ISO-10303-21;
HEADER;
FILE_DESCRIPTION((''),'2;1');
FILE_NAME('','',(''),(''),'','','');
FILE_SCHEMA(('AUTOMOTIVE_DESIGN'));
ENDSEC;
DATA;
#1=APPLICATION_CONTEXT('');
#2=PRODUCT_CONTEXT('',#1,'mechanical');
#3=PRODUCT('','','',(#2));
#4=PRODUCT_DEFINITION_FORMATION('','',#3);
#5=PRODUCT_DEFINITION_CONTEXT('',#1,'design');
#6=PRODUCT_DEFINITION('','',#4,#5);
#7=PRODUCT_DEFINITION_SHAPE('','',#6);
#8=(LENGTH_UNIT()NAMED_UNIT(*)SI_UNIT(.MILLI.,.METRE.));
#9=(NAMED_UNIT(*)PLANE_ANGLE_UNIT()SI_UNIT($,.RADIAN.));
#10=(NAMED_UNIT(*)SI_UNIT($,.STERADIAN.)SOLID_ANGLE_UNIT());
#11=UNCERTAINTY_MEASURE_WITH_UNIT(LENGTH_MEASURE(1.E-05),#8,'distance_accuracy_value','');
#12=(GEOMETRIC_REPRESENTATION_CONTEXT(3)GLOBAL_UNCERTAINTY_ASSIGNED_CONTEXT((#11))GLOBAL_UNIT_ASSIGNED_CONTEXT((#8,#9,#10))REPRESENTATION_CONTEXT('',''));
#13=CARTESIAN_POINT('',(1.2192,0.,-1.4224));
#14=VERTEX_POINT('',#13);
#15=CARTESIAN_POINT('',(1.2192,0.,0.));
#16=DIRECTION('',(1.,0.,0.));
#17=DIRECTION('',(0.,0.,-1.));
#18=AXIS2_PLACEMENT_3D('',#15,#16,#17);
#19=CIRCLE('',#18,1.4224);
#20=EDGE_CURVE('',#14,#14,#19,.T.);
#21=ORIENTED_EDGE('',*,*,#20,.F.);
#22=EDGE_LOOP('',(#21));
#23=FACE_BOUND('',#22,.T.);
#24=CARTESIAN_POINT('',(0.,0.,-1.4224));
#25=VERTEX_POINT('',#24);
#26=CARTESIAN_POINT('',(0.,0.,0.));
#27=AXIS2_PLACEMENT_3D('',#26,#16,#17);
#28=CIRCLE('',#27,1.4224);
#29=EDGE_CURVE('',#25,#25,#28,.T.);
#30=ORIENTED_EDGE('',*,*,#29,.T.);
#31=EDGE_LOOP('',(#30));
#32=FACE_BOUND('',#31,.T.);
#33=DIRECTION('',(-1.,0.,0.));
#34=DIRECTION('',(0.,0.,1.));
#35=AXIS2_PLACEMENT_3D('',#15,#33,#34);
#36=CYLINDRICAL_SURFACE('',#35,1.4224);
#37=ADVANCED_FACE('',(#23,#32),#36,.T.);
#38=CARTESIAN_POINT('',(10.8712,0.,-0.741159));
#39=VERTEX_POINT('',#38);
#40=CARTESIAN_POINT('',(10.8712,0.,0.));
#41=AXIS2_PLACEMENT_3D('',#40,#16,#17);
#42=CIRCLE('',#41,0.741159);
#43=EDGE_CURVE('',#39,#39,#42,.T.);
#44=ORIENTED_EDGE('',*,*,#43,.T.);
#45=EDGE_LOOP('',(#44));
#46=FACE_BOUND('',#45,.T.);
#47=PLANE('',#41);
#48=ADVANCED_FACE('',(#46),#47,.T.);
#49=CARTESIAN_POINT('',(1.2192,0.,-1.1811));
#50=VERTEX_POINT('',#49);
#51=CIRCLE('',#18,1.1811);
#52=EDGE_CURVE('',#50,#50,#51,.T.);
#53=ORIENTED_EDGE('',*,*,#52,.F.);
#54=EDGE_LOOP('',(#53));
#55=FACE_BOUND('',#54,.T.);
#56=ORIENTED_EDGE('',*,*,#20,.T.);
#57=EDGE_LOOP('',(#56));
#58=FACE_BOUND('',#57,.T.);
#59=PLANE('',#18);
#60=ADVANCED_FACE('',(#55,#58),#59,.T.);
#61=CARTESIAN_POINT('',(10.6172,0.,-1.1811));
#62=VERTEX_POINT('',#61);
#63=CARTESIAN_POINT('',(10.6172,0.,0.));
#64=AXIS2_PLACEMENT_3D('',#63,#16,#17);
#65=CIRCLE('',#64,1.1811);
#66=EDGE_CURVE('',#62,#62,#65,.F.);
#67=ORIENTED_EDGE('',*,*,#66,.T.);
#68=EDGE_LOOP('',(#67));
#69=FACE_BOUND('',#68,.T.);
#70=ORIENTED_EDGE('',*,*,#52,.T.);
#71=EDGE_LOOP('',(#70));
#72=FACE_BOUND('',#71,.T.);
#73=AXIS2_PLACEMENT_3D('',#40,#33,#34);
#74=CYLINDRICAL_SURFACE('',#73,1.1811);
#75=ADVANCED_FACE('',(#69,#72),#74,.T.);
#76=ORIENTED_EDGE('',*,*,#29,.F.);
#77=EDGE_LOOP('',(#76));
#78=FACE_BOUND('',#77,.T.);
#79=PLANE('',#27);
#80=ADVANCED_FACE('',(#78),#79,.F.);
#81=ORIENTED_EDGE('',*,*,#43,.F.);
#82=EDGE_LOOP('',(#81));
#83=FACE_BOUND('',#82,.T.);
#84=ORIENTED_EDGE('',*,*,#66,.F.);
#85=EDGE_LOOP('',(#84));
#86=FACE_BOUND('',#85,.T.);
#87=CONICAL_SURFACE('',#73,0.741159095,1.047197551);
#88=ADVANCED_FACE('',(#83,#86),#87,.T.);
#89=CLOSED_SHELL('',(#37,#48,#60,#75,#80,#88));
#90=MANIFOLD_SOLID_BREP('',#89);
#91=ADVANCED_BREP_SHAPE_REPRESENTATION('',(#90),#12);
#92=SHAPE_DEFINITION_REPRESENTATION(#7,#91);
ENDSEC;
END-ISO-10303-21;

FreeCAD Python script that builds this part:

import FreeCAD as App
import Part
import Sketcher
Q = App.Units.Quantity


def edges_at(feature, points):
    """Names of the edges that pass closest to the given points."""
    edges = feature.Shape.Edges
    near = lambda p: min(range(len(edges)), key=lambda i: edges[i].distToShape(Part.Vertex(*p))[0])
    return sorted({f"Edge{near(p) + 1}" for p in points})

doc = App.newDocument("Part")
params = doc.addObject("Spreadsheet::Sheet", "Params")
for row, (alias, value) in enumerate([
    ("sketch1_diameter", "0.112 in"),
    ("pad1_length", "0.048 in"),
    ("sketch2_diameter", "0.093 in"),
    ("pad2_length", "0.38 in"),
    ("chamfer_size", "0.01 in"),
    ("chamfer_size2", "0.439941 mm"),
], start=1):
    params.set(f"A{row}", alias)
    params.set(f"B{row}", "=" + value)
    params.setAlias(f"B{row}", alias)

body = doc.addObject("PartDesign::Body", "Body")

# Sketch on YZ plane
sketch1 = body.newObject("Sketcher::SketchObject", "Sketch")
sketch1.AttachmentSupport = (doc.getObject("YZ_Plane"), [""])
sketch1.MapMode = "FlatFace"
sketch1.addGeometry(Part.Circle(App.Vector(0, 0, 0), App.Vector(0, 0, 1), 1.4), False)
sketch1.addConstraint(Sketcher.Constraint("Coincident", 0, 3, -1, 1))
sketch1.addConstraint(Sketcher.Constraint("Diameter", 0, Q("0.112 in")))
sketch1.setExpression("Constraints[1]", "Params.sketch1_diameter")
pad1 = body.newObject("PartDesign::Pad", "Pad")
pad1.Profile = sketch1
pad1.setExpression("Length", "Params.pad1_length")

# Sketch on YZ plane
sketch2 = body.newObject("Sketcher::SketchObject", "Sketch001")
sketch2.AttachmentSupport = (doc.getObject("YZ_Plane"), [""])
sketch2.MapMode = "FlatFace"
sketch2.AttachmentOffset = App.Placement(App.Vector(0, 0, 0.048 * 25.4), App.Rotation())
sketch2.addGeometry(Part.Circle(App.Vector(0, 0, 0), App.Vector(0, 0, 1), 1.2), False)
sketch2.addConstraint(Sketcher.Constraint("Coincident", 0, 3, -1, 1))
sketch2.addConstraint(Sketcher.Constraint("Diameter", 0, Q("0.093 in")))
sketch2.setExpression("Constraints[1]", "Params.sketch2_diameter")
pad2 = body.newObject("PartDesign::Pad", "Pad001")
pad2.Profile = sketch2
pad2.setExpression("Length", "Params.pad2_length")
doc.recompute()

chamfer = body.newObject("PartDesign::Chamfer", "Chamfer")
chamfer.Base = (pad2, edges_at(pad2, [(10.871, 0, 1.181)]))
chamfer.ChamferType = "Two distances"
chamfer.setExpression("Size", "Params.chamfer_size")
chamfer.setExpression("Size2", "Params.chamfer_size2")

doc.recompute()
